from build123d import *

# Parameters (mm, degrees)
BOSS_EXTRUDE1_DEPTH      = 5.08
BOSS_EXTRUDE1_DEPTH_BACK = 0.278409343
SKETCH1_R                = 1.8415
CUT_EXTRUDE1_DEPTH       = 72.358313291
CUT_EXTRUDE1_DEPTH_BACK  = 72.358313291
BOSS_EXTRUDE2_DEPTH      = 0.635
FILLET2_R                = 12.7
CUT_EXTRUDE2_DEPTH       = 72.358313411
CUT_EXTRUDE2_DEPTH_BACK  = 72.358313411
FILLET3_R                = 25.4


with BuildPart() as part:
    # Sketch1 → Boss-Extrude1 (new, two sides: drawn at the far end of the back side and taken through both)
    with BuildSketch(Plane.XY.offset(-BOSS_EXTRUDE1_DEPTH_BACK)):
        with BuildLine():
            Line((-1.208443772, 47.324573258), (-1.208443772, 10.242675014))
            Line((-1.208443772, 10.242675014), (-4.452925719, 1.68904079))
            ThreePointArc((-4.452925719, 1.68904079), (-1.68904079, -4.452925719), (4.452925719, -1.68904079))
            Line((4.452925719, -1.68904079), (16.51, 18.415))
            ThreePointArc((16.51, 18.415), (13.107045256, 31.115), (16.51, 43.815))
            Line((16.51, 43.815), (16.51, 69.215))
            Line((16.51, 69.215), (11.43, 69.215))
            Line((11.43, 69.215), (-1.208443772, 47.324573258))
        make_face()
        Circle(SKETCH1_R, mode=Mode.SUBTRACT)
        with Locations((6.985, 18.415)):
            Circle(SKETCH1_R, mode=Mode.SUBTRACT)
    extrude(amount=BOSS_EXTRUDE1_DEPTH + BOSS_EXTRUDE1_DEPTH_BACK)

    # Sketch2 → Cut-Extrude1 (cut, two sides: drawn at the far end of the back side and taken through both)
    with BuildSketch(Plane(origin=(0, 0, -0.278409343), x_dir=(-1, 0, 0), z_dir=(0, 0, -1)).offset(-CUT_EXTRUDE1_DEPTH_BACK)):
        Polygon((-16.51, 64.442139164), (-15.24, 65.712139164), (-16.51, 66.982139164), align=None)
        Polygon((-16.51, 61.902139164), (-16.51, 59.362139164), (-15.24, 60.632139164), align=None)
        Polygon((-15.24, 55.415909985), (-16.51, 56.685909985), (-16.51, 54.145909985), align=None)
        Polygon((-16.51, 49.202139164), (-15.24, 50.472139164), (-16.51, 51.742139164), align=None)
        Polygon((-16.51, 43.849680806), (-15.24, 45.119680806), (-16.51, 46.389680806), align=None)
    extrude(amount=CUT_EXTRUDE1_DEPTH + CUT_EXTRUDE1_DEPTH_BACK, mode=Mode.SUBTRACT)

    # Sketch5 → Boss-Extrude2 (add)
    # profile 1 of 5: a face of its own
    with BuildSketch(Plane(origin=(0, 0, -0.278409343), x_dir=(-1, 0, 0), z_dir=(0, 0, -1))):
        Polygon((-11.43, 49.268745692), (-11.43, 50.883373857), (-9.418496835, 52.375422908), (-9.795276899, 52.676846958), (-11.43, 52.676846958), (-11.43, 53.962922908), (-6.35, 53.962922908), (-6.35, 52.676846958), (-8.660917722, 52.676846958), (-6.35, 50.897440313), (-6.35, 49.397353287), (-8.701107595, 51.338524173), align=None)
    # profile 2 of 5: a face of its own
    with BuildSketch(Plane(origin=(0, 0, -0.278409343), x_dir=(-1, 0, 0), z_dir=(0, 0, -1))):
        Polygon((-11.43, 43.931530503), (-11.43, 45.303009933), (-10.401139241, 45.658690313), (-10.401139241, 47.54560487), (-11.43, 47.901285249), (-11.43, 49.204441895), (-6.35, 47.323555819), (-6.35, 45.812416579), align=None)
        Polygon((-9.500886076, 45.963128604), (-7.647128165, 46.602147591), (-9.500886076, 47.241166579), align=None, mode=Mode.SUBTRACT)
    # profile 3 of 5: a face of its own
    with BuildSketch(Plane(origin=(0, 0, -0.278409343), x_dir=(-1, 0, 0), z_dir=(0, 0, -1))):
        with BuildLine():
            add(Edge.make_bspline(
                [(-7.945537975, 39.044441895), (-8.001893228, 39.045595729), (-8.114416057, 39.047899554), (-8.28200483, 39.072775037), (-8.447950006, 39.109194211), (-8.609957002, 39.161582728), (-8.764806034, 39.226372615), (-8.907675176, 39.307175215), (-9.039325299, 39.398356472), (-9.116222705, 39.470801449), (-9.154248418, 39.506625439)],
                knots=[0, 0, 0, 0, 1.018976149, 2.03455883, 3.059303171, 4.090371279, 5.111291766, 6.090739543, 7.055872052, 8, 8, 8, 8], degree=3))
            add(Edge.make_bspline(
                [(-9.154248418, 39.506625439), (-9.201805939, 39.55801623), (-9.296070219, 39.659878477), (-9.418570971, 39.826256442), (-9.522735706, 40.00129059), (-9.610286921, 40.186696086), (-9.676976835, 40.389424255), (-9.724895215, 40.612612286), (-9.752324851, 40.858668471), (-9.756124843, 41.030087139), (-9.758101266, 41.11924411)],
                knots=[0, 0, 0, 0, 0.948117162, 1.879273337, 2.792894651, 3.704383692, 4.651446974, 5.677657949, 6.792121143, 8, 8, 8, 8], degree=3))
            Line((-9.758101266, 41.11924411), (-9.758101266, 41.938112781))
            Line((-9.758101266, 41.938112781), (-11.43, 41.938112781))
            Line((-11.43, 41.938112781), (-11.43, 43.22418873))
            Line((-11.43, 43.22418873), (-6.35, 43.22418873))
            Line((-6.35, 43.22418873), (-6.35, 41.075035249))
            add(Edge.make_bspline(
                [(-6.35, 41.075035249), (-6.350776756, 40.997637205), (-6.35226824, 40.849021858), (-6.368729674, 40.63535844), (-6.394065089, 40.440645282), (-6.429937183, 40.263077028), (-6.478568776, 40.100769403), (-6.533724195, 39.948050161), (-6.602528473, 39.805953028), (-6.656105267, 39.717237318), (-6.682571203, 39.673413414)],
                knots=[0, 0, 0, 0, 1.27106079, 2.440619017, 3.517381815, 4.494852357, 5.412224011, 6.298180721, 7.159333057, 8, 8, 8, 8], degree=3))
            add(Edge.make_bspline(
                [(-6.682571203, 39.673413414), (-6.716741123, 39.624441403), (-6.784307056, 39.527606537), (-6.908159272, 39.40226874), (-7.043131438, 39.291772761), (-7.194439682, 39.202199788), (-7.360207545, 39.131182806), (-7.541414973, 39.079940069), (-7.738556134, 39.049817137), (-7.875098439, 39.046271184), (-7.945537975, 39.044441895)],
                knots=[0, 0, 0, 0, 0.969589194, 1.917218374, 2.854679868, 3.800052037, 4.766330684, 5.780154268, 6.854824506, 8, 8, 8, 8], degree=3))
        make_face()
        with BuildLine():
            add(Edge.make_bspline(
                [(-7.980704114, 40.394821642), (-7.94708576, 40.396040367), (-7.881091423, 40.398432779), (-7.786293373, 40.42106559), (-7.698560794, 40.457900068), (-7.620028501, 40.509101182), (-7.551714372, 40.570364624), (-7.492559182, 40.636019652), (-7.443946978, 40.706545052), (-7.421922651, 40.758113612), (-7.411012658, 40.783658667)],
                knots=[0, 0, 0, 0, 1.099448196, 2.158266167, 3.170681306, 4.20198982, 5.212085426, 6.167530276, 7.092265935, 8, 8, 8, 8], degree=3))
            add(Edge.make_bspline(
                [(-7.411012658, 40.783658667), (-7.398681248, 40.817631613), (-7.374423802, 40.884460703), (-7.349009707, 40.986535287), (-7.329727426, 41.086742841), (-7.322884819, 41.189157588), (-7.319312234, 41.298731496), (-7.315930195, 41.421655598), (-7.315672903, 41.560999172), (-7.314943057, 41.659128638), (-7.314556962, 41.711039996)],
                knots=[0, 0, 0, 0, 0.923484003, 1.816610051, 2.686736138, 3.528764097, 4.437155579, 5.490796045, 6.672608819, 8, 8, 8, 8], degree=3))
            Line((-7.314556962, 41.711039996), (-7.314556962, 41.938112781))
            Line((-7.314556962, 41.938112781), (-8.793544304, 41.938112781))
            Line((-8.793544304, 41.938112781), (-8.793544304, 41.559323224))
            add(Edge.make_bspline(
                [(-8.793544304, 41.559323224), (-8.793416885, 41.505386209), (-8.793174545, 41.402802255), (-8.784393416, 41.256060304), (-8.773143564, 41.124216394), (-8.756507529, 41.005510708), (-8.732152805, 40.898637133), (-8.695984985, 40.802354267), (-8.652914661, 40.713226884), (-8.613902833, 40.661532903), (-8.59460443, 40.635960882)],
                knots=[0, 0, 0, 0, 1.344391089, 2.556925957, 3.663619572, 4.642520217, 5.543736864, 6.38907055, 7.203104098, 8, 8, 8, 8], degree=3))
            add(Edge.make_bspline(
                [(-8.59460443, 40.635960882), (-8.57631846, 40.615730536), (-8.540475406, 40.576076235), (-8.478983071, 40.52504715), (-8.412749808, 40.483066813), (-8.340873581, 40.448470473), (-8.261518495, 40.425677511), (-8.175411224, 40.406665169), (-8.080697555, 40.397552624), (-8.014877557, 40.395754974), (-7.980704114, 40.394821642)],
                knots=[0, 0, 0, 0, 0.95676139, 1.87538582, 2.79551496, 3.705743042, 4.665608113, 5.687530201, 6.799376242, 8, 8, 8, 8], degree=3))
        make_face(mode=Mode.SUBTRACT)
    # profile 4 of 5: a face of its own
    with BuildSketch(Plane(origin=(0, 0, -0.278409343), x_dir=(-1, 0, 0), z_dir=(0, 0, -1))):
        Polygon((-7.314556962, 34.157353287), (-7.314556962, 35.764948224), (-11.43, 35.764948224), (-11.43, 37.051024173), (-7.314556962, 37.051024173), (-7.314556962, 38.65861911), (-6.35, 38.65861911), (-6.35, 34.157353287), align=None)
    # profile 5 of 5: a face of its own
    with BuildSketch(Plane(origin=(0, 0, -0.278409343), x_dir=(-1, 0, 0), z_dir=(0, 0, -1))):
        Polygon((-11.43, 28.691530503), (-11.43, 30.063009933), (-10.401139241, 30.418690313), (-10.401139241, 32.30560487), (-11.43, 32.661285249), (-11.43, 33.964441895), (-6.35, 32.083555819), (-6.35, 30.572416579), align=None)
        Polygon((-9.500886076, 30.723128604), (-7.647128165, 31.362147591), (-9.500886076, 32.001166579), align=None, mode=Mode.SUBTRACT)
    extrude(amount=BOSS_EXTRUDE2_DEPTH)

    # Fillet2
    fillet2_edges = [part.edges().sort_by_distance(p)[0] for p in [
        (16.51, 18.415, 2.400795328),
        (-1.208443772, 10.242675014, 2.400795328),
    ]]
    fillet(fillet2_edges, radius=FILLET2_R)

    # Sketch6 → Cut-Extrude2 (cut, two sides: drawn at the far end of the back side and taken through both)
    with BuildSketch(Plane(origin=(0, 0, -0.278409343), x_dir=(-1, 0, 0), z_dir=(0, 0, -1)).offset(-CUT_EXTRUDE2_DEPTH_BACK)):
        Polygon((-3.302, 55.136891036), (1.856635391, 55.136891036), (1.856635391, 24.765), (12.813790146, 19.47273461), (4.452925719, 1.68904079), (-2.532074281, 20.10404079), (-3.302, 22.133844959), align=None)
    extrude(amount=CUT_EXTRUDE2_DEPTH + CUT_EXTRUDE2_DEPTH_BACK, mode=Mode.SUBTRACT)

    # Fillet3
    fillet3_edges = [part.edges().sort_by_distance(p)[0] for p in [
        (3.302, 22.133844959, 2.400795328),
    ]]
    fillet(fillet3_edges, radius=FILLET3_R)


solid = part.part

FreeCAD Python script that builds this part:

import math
import FreeCAD as App
import Part
import Sketcher

V = App.Vector
Q = App.Units.Quantity


def edges_at(feature, points):
    """Names of the edges that pass closest to the given points."""
    edges = feature.Shape.Edges
    near = lambda p: min(range(len(edges)), key=lambda i: edges[i].distToShape(Part.Vertex(*p))[0])
    return sorted({f"Edge{near(p) + 1}" for p in points})


def add_polygon(sketch, points):
    """Adds a closed chain of lines whose ends are joined by coincident constraints."""
    first, n = sketch.GeometryCount, len(points)
    for a, b in zip(points, points[1:] + points[:1]):
        sketch.addGeometry(Part.LineSegment(App.Vector(*a, 0), App.Vector(*b, 0)), False)
    for i in range(n):
        sketch.addConstraint(Sketcher.Constraint("Coincident", first + i, 2, first + (i + 1) % n, 1))

doc = App.newDocument("Part")
body = doc.addObject("PartDesign::Body", "Body")

sketch1 = body.newObject("Sketcher::SketchObject", "Sketch")
sketch1.AttachmentSupport = (doc.getObject("XY_Plane"), [""])
sketch1.MapMode = "FlatFace"
sketch1.addGeometry([
    Part.LineSegment(V(-1.2, 47.3, 0), V(-1.2, 10.2, 0)),
    Part.LineSegment(V(-1.2, 10.2, 0), V(-4.5, 1.7, 0)),
    Part.ArcOfCircle(Part.Circle(V(0, 0, 0), V(0, 0, 1), 4.8), math.radians(159), math.radians(339)),
    Part.LineSegment(V(4.5, -1.7, 0), V(16.5, 18.4, 0)),
    Part.ArcOfCircle(Part.Circle(V(38.5, 31.1, 0), V(0, 0, 1), 25.4), math.radians(150), math.radians(210)),
    Part.LineSegment(V(16.5, 43.8, 0), V(16.5, 69.2, 0)),
    Part.LineSegment(V(16.5, 69.2, 0), V(11.4, 69.2, 0)),
    Part.LineSegment(V(11.4, 69.2, 0), V(-1.2, 47.3, 0)),
    Part.Circle(V(0, 0, 0), V(0, 0, 1), 1.8),
    Part.Circle(V(7, 18.4, 0), V(0, 0, 1), 1.8),
], False)
sketch1.addConstraint([
    Sketcher.Constraint("Coincident", 0, 2, 1, 1),
    Sketcher.Constraint("Tangent", 1, 2, 2, 1),
    Sketcher.Constraint("Coincident", 2, 2, 3, 1),
    Sketcher.Constraint("Coincident", 3, 2, 4, 2),
    Sketcher.Constraint("Coincident", 4, 1, 5, 1),
    Sketcher.Constraint("Coincident", 5, 2, 6, 1),
    Sketcher.Constraint("Coincident", 6, 2, 7, 1),
    Sketcher.Constraint("Coincident", 7, 2, 0, 1),
    Sketcher.Constraint("Vertical", 0),
    Sketcher.Constraint("Vertical", 5),
    Sketcher.Constraint("Horizontal", 6),
    Sketcher.Constraint("Coincident", 2, 3, -1, 1),
    Sketcher.Constraint("Coincident", 8, 3, -1, 1),
    Sketcher.Constraint("Equal", 8, 9),
    Sketcher.Constraint("Horizontal", 9, 3, 3, 2),
    Sketcher.Constraint("Vertical", 3, 2, 4, 1),
    Sketcher.Constraint("Radius", 4, Q("1 in")),
    Sketcher.Constraint("DistanceY", 5, 1, 5, 2, Q("1 in")),
    Sketcher.Constraint("Diameter", 8, Q("0.145 in")),
    Sketcher.Constraint("DistanceX", 6, 2, 6, 1, Q("0.2 in")),
    Sketcher.Constraint("Angle", 7, Q("-120 deg")),
    Sketcher.Constraint("Radius", 2, Q("0.1875 in")),
    Sketcher.Constraint("DistanceY", 3, 2, 4, 1, Q("1 in")),
    Sketcher.Constraint("DistanceX", -1, 1, 3, 2, Q("0.65 in")),
    Sketcher.Constraint("DistanceY", -1, 1, 4, 3, Q("1.225 in")),
    Sketcher.Constraint("DistanceX", -1, 1, 9, 3, Q("0.275 in")),
    Sketcher.Constraint("DistanceY", 0, 2, 0, 1, 37.081898),
    Sketcher.Constraint("DistanceY", -1, 1, 1, 2, 1.689041),
    Sketcher.Constraint("DistanceY", 2, 2, -1, 1, 1.689041),
])
pad1 = body.newObject("PartDesign::Pad", "Pad")
pad1.Profile = sketch1
pad1.Type = "TwoLengths"
pad1.Length = Q("0.2 in")
pad1.Length2 = 0.278409

sketch2 = body.newObject("Sketcher::SketchObject", "Sketch001")
sketch2.AttachmentSupport = (doc.getObject("XY_Plane"), [""])
sketch2.MapMode = "FlatFace"
sketch2.AttachmentOffset = App.Placement(V(0, 0, -0.278409), App.Rotation())
add_polygon(sketch2, [(16.5, 64.4), (15.2, 65.7), (16.5, 67)])
add_polygon(sketch2, [(16.5, 61.9), (16.5, 59.4), (15.2, 60.6)])
add_polygon(sketch2, [(15.2, 55.4), (16.5, 56.7), (16.5, 54.1)])
add_polygon(sketch2, [(16.5, 49.2), (15.2, 50.5), (16.5, 51.7)])
add_polygon(sketch2, [(16.5, 43.8), (15.2, 45.1), (16.5, 46.4)])
sketch2.addConstraint([
    Sketcher.Constraint("Vertical", 2),
    Sketcher.Constraint("Vertical", 3),
    Sketcher.Constraint("Vertical", 7),
    Sketcher.Constraint("Vertical", 11),
    Sketcher.Constraint("Vertical", 14),
    Sketcher.Constraint("Perpendicular", 0, 1),
    Sketcher.Constraint("Perpendicular", 1, 4),
    Sketcher.Constraint("Perpendicular", 4, 5),
    Sketcher.Constraint("Parallel", 5, 6),
    Sketcher.Constraint("Perpendicular", 6, 8),
    Sketcher.Constraint("Parallel", 8, 9),
    Sketcher.Constraint("Perpendicular", 9, 10),
    Sketcher.Constraint("Perpendicular", 10, 12),
    Sketcher.Constraint("Perpendicular", 12, 13),
    Sketcher.Constraint("Vertical", 2, 2, 3, 2),
    Sketcher.Constraint("Vertical", 0, 2, 4, 2),
    Sketcher.Constraint("Vertical", 5, 2, 6, 2),
    Sketcher.Constraint("Vertical", 4, 2, 8, 2),
    Sketcher.Constraint("Vertical", 8, 2, 9, 2),
    Sketcher.Constraint("Vertical", 7, 2, 10, 2),
    Sketcher.Constraint("Vertical", 9, 2, 12, 2),
    Sketcher.Constraint("Vertical", 11, 2, 13, 2),
    Sketcher.Constraint("Equal", 0, 1),
    Sketcher.Constraint("DistanceY", 2, 2, 2, 1, Q("0.1 in")),
    Sketcher.Constraint("DistanceX", -1, 1, 0, 2, Q("0.6 in")),
    Sketcher.Constraint("DistanceY", 3, 2, 2, 2, Q("0.2 in")),
    Sketcher.Constraint("DistanceY", 9, 2, 4, 2, Q("0.4 in")),
    Sketcher.Constraint("DistanceY", -1, 1, 0, 2, 65.712139),
    Sketcher.Constraint("DistanceY", -1, 1, 6, 2, 56.68591),
    Sketcher.Constraint("DistanceY", -1, 1, 12, 2, 45.119681),
])
pocket1 = body.newObject("PartDesign::Pocket", "Pocket")
pocket1.Profile = sketch2
pocket1.Type = "ThroughAll"
pocket1.Midplane = True

sketch3 = body.newObject("Sketcher::SketchObject", "Sketch002")
sketch3.AttachmentSupport = (doc.getObject("XY_Plane"), [""])
sketch3.MapMode = "FlatFace"
sketch3.AttachmentOffset = App.Placement(V(0, 0, -0.278409), App.Rotation())
add_polygon(sketch3, [(11.43, 50.883374), (11.43, 49.268746), (8.701108, 51.338524), (6.35, 49.397353), (6.35, 50.89744), (8.660918, 52.676847), (6.35, 52.676847), (6.35, 53.962923), (11.43, 53.962923), (11.43, 52.676847), (9.795277, 52.676847), (9.418497, 52.375423)])
add_polygon(sketch3, [(11.43, 45.30301), (11.43, 43.931531), (6.35, 45.812417), (6.35, 47.323556), (11.43, 49.204442), (11.43, 47.901285), (10.401139, 47.545605), (10.401139, 45.65869)])
add_polygon(sketch3, [(9.500886, 45.963129), (9.500886, 47.241167), (7.647128, 46.602148)])
sketch3.addGeometry(Part.BSplineCurve([V(7.945538, 39.044442, 0), V(8.001893, 39.045596, 0), V(8.114416, 39.0479, 0), V(8.282005, 39.072775, 0), V(8.44795, 39.109194, 0), V(8.609957, 39.161583, 0), V(8.764806, 39.226373, 0), V(8.907675, 39.307175, 0), V(9.039325, 39.398356, 0), V(9.116223, 39.470801, 0), V(9.154248, 39.506625, 0)], [4, 1, 1, 1, 1, 1, 1, 1, 4], [0, 1.018976149, 2.03455883, 3.059303171, 4.090371279, 5.111291766, 6.090739543, 7.055872052, 8], False, 3, [1, 1, 1, 1, 1, 1, 1, 1, 1, 1, 1], False), False)
sketch3.addGeometry(Part.BSplineCurve([V(6.682571, 39.673413, 0), V(6.716741, 39.624441, 0), V(6.784307, 39.527607, 0), V(6.908159, 39.402269, 0), V(7.043131, 39.291773, 0), V(7.19444, 39.2022, 0), V(7.360208, 39.131183, 0), V(7.541415, 39.07994, 0), V(7.738556, 39.049817, 0), V(7.875098, 39.046271, 0), V(7.945538, 39.044442, 0)], [4, 1, 1, 1, 1, 1, 1, 1, 4], [0, 0.969589194, 1.917218374, 2.854679868, 3.800052037, 4.766330684, 5.780154268, 6.854824506, 8], False, 3, [1, 1, 1, 1, 1, 1, 1, 1, 1, 1, 1], False), False)
sketch3.addGeometry(Part.BSplineCurve([V(6.35, 41.075035, 0), V(6.350777, 40.997637, 0), V(6.352268, 40.849022, 0), V(6.36873, 40.635358, 0), V(6.394065, 40.440645, 0), V(6.429937, 40.263077, 0), V(6.478569, 40.100769, 0), V(6.533724, 39.94805, 0), V(6.602528, 39.805953, 0), V(6.656105, 39.717237, 0), V(6.682571, 39.673413, 0)], [4, 1, 1, 1, 1, 1, 1, 1, 4], [0, 1.27106079, 2.440619017, 3.517381815, 4.494852357, 5.412224011, 6.298180721, 7.159333057, 8], False, 3, [1, 1, 1, 1, 1, 1, 1, 1, 1, 1, 1], False), False)
sketch3.addGeometry(Part.LineSegment(V(6.35, 41.075035, 0), V(6.35, 43.224189, 0)), False)
sketch3.addGeometry(Part.LineSegment(V(6.35, 43.224189, 0), V(11.43, 43.224189, 0)), False)
sketch3.addGeometry(Part.LineSegment(V(11.43, 43.224189, 0), V(11.43, 41.938113, 0)), False)
sketch3.addGeometry(Part.LineSegment(V(11.43, 41.938113, 0), V(9.758101, 41.938113, 0)), False)
sketch3.addGeometry(Part.LineSegment(V(9.758101, 41.938113, 0), V(9.758101, 41.119244, 0)), False)
sketch3.addGeometry(Part.BSplineCurve([V(9.154248, 39.506625, 0), V(9.201806, 39.558016, 0), V(9.29607, 39.659878, 0), V(9.418571, 39.826256, 0), V(9.522736, 40.001291, 0), V(9.610287, 40.186696, 0), V(9.676977, 40.389424, 0), V(9.724895, 40.612612, 0), V(9.752325, 40.858668, 0), V(9.756125, 41.030087, 0), V(9.758101, 41.119244, 0)], [4, 1, 1, 1, 1, 1, 1, 1, 4], [0, 0.948117162, 1.879273337, 2.792894651, 3.704383692, 4.651446974, 5.677657949, 6.792121143, 8], False, 3, [1, 1, 1, 1, 1, 1, 1, 1, 1, 1, 1], False), False)
sketch3.addGeometry(Part.BSplineCurve([V(8.594604, 40.635961, 0), V(8.576318, 40.615731, 0), V(8.540475, 40.576076, 0), V(8.478983, 40.525047, 0), V(8.41275, 40.483067, 0), V(8.340874, 40.44847, 0), V(8.261518, 40.425678, 0), V(8.175411, 40.406665, 0), V(8.080698, 40.397553, 0), V(8.014878, 40.395755, 0), V(7.980704, 40.394822, 0)], [4, 1, 1, 1, 1, 1, 1, 1, 4], [0, 0.95676139, 1.87538582, 2.79551496, 3.705743042, 4.665608113, 5.687530201, 6.799376242, 8], False, 3, [1, 1, 1, 1, 1, 1, 1, 1, 1, 1, 1], False), False)
sketch3.addGeometry(Part.BSplineCurve([V(8.793544, 41.559323, 0), V(8.793417, 41.505386, 0), V(8.793175, 41.402802, 0), V(8.784393, 41.25606, 0), V(8.773144, 41.124216, 0), V(8.756508, 41.005511, 0), V(8.732153, 40.898637, 0), V(8.695985, 40.802354, 0), V(8.652915, 40.713227, 0), V(8.613903, 40.661533, 0), V(8.594604, 40.635961, 0)], [4, 1, 1, 1, 1, 1, 1, 1, 4], [0, 1.344391089, 2.556925957, 3.663619572, 4.642520217, 5.543736864, 6.38907055, 7.203104098, 8], False, 3, [1, 1, 1, 1, 1, 1, 1, 1, 1, 1, 1], False), False)
sketch3.addGeometry(Part.LineSegment(V(8.793544, 41.559323, 0), V(8.793544, 41.938113, 0)), False)
sketch3.addGeometry(Part.LineSegment(V(8.793544, 41.938113, 0), V(7.314557, 41.938113, 0)), False)
sketch3.addGeometry(Part.LineSegment(V(7.314557, 41.938113, 0), V(7.314557, 41.71104, 0)), False)
sketch3.addGeometry(Part.BSplineCurve([V(7.411013, 40.783659, 0), V(7.398681, 40.817632, 0), V(7.374424, 40.884461, 0), V(7.34901, 40.986535, 0), V(7.329727, 41.086743, 0), V(7.322885, 41.189158, 0), V(7.319312, 41.298731, 0), V(7.31593, 41.421656, 0), V(7.315673, 41.560999, 0), V(7.314943, 41.659129, 0), V(7.314557, 41.71104, 0)], [4, 1, 1, 1, 1, 1, 1, 1, 4], [0, 0.923484003, 1.816610051, 2.686736138, 3.528764097, 4.437155579, 5.490796045, 6.672608819, 8], False, 3, [1, 1, 1, 1, 1, 1, 1, 1, 1, 1, 1], False), False)
sketch3.addGeometry(Part.BSplineCurve([V(7.980704, 40.394822, 0), V(7.947086, 40.39604, 0), V(7.881091, 40.398433, 0), V(7.786293, 40.421066, 0), V(7.698561, 40.4579, 0), V(7.620029, 40.509101, 0), V(7.551714, 40.570365, 0), V(7.492559, 40.63602, 0), V(7.443947, 40.706545, 0), V(7.421923, 40.758114, 0), V(7.411013, 40.783659, 0)], [4, 1, 1, 1, 1, 1, 1, 1, 4], [0, 1.099448196, 2.158266167, 3.170681306, 4.20198982, 5.212085426, 6.167530276, 7.092265935, 8], False, 3, [1, 1, 1, 1, 1, 1, 1, 1, 1, 1, 1], False), False)
add_polygon(sketch3, [(7.314557, 35.764948), (7.314557, 34.157353), (6.35, 34.157353), (6.35, 38.658619), (7.314557, 38.658619), (7.314557, 37.051024), (11.43, 37.051024), (11.43, 35.764948)])
add_polygon(sketch3, [(11.43, 30.06301), (11.43, 28.691531), (6.35, 30.572417), (6.35, 32.083556), (11.43, 33.964442), (11.43, 32.661285), (10.401139, 32.305605), (10.401139, 30.41869)])
add_polygon(sketch3, [(9.500886, 30.723129), (9.500886, 32.001167), (7.647128, 31.362148)])
sketch3.addConstraint([
    Sketcher.Constraint("Block", 23),
    Sketcher.Constraint("Block", 24),
    Sketcher.Constraint("Block", 25),
    Sketcher.Constraint("Block", 31),
    Sketcher.Constraint("Block", 32),
    Sketcher.Constraint("Block", 33),
    Sketcher.Constraint("Block", 37),
    Sketcher.Constraint("Block", 38),
    Sketcher.Constraint("Coincident", 25, 1, 26, 1),
    Sketcher.Constraint("Coincident", 26, 2, 27, 1),
    Sketcher.Constraint("Coincident", 27, 2, 28, 1),
    Sketcher.Constraint("Coincident", 28, 2, 29, 1),
    Sketcher.Constraint("Coincident", 29, 2, 30, 1),
    Sketcher.Constraint("Coincident", 30, 2, 31, 2),
    Sketcher.Constraint("Coincident", 33, 1, 34, 1),
    Sketcher.Constraint("Coincident", 34, 2, 35, 1),
    Sketcher.Constraint("Coincident", 35, 2, 36, 1),
    Sketcher.Constraint("Coincident", 36, 2, 37, 2),
    Sketcher.Constraint("Vertical", 0),
    Sketcher.Constraint("Vertical", 3),
    Sketcher.Constraint("Horizontal", 5),
    Sketcher.Constraint("Vertical", 6),
    Sketcher.Constraint("Horizontal", 7),
    Sketcher.Constraint("Vertical", 8),
    Sketcher.Constraint("Horizontal", 9),
    Sketcher.Constraint("Vertical", 12),
    Sketcher.Constraint("Vertical", 14),
    Sketcher.Constraint("Vertical", 16),
    Sketcher.Constraint("Vertical", 18),
    Sketcher.Constraint("Vertical", 20),
    Sketcher.Constraint("Vertical", 26),
    Sketcher.Constraint("Horizontal", 27),
    Sketcher.Constraint("Vertical", 28),
    Sketcher.Constraint("Horizontal", 29),
    Sketcher.Constraint("Vertical", 30),
    Sketcher.Constraint("Vertical", 34),
    Sketcher.Constraint("Horizontal", 35),
    Sketcher.Constraint("Vertical", 36),
    Sketcher.Constraint("Vertical", 39),
    Sketcher.Constraint("Horizontal", 40),
    Sketcher.Constraint("Vertical", 41),
    Sketcher.Constraint("Horizontal", 42),
    Sketcher.Constraint("Vertical", 43),
    Sketcher.Constraint("Horizontal", 44),
    Sketcher.Constraint("Vertical", 45),
    Sketcher.Constraint("Horizontal", 46),
    Sketcher.Constraint("Vertical", 47),
    Sketcher.Constraint("Vertical", 49),
    Sketcher.Constraint("Vertical", 51),
    Sketcher.Constraint("Vertical", 53),
    Sketcher.Constraint("Vertical", 55),
    Sketcher.Constraint("Parallel", 13, 48),
    Sketcher.Constraint("Parallel", 15, 50),
    Sketcher.Constraint("Parallel", 17, 52),
    Sketcher.Constraint("Parallel", 19, 54),
    Sketcher.Constraint("Parallel", 21, 56),
    Sketcher.Constraint("Parallel", 22, 57),
    Sketcher.Constraint("Horizontal", 5, 2, 8, 2),
    Sketcher.Constraint("Horizontal", 29, 2, 34, 2),
    Sketcher.Constraint("Vertical", 3, 2, 5, 2),
    Sketcher.Constraint("Vertical", 0, 2, 7, 2),
    Sketcher.Constraint("Vertical", 11, 2, 12, 2),
    Sketcher.Constraint("Vertical", 6, 2, 13, 2),
    Sketcher.Constraint("Vertical", 12, 2, 15, 2),
    Sketcher.Constraint("Vertical", 14, 2, 26, 2),
    Sketcher.Constraint("Vertical", 19, 2, 27, 2),
    Sketcher.Constraint("Vertical", 36, 2, 39, 2),
    Sketcher.Constraint("Vertical", 26, 2, 40, 2),
    Sketcher.Constraint("Vertical", 39, 2, 42, 2),
    Sketcher.Constraint("Vertical", 28, 2, 44, 2),
    Sketcher.Constraint("Vertical", 45, 2, 47, 2),
    Sketcher.Constraint("Vertical", 41, 2, 48, 2),
    Sketcher.Constraint("Vertical", 47, 2, 50, 2),
    Sketcher.Constraint("Vertical", 18, 2, 52, 2),
    Sketcher.Constraint("Vertical", 22, 2, 55, 2),
    Sketcher.Constraint("Vertical", 21, 2, 56, 2),
    Sketcher.Constraint("Equal", 8, 28),
    Sketcher.Constraint("Equal", 39, 43),
    Sketcher.Constraint("Equal", 28, 45),
    Sketcher.Constraint("Equal", 12, 47),
    Sketcher.Constraint("Equal", 14, 49),
    Sketcher.Constraint("Equal", 16, 51),
    Sketcher.Constraint("Equal", 13, 15),
    Sketcher.Constraint("Equal", 17, 19),
    Sketcher.Constraint("Equal", 21, 22),
    Sketcher.Constraint("DistanceX", 7, 1, 7, 2, Q("0.2 in")),
    Sketcher.Constraint("DistanceY", 10, 2, 7, 2, Q("0.0625 in")),
    Sketcher.Constraint("DistanceY", 0, 2, 0, 1, 1.614628),
    Sketcher.Constraint("DistanceY", 12, 2, 12, 1, 1.371479),
    Sketcher.Constraint("DistanceY", 14, 1, 14, 2, 1.511139),
    Sketcher.Constraint("DistanceY", 30, 2, 30, 1, 0.818869),
    Sketcher.Constraint("DistanceY", 0, 2, 4, 2, 3.408101),
    Sketcher.Constraint("DistanceY", 1, 2, 6, 2, 2.624399),
    Sketcher.Constraint("DistanceY", 26, 2, 18, 2, 2.434502),
    Sketcher.Constraint("Distance", 1, 3.425031),
    Sketcher.Constraint("Distance", 2, 3.04891),
    Sketcher.Constraint("DistanceX", 5, 2, 5, 1, 2.310918),
    Sketcher.Constraint("DistanceX", 9, 2, 9, 1, 1.634723),
    Sketcher.Constraint("DistanceY", 3, 1, 3, 2, 1.500087),
    Sketcher.Constraint("DistanceY", 6, 1, 6, 2, 1.286076),
    Sketcher.Constraint("DistanceY", 16, 2, 16, 1, 1.303157),
    Sketcher.Constraint("DistanceY", 18, 2, 18, 1, 1.886915),
    Sketcher.Constraint("DistanceY", 20, 1, 20, 2, 1.278038),
    Sketcher.Constraint("DistanceY", 39, 2, 39, 1, 1.607595),
    Sketcher.Constraint("DistanceY", -1, 1, 3, 2, 50.89744),
    Sketcher.Constraint("DistanceY", -1, 1, 12, 2, 43.931531),
    Sketcher.Constraint("DistanceX", -1, 1, 17, 2, 10.401139),
    Sketcher.Constraint("DistanceX", -1, 1, 21, 2, 7.647128),
    Sketcher.Constraint("DistanceY", -1, 1, 22, 2, 45.963129),
    Sketcher.Constraint("DistanceY", -1, 1, 41, 2, 38.658619),
    Sketcher.Constraint("DistanceY", -1, 1, 47, 2, 28.691531),
    Sketcher.Constraint("DistanceY", -1, 1, 57, 2, 30.723129),
    Sketcher.Constraint("DistanceX", 10, 2, 9, 2, 0.37678),
    Sketcher.Constraint("Distance", 21, 1.960807),
])
pad2 = body.newObject("PartDesign::Pad", "Pad001")
pad2.Profile = sketch3
pad2.Length = Q("0.025 in")
pad2.Reversed = True
doc.recompute()

fillet = body.newObject("PartDesign::Fillet", "Fillet")
fillet.Base = (pad2, edges_at(pad2, [(16.51, 18.415, 2.401), (-1.208, 10.243, 2.401)]))
fillet.Radius = Q("0.5 in")

sketch4 = body.newObject("Sketcher::SketchObject", "Sketch003")
sketch4.AttachmentSupport = (doc.getObject("XY_Plane"), [""])
sketch4.MapMode = "FlatFace"
sketch4.AttachmentOffset = App.Placement(V(0, 0, -0.278409), App.Rotation())
add_polygon(sketch4, [(-1.9, 55.1), (3.3, 55.1), (3.3, 22.1), (2.5, 20.1), (-4.5, 1.7), (-12.8, 19.5), (-1.9, 24.8)])
sketch4.addConstraint([
    Sketcher.Constraint("Horizontal", 0),
    Sketcher.Constraint("Vertical", 1),
    Sketcher.Constraint("Vertical", 6),
    Sketcher.Constraint("Parallel", 2, 3),
    Sketcher.Constraint("DistanceX", -1, 1, 0, 2, Q("0.13 in")),
    Sketcher.Constraint("DistanceY", -1, 1, 5, 2, Q("0.975 in")),
    Sketcher.Constraint("DistanceX", 3, 2, 2, 2, Q("0.275 in")),
    Sketcher.Constraint("DistanceY", 3, 2, 2, 2, Q("0.725 in")),
    Sketcher.Constraint("DistanceY", 6, 1, 6, 2, 30.371891),
    Sketcher.Constraint("Distance", 2, 2.170919),
    Sketcher.Constraint("Distance", 4, 19.651051),
    Sketcher.Constraint("Distance", 5, 12.168291),
    Sketcher.Constraint("DistanceX", 0, 1, 0, 2, 5.158635),
    Sketcher.Constraint("DistanceY", 1, 2, 1, 1, 33.003046),
])
pocket2 = body.newObject("PartDesign::Pocket", "Pocket001")
pocket2.Profile = sketch4
pocket2.Type = "ThroughAll"
pocket2.Midplane = True
doc.recompute()

fillet2 = body.newObject("PartDesign::Fillet", "Fillet001")
fillet2.Base = (pocket2, edges_at(pocket2, [(3.302, 22.134, 2.401)]))
fillet2.Radius = Q("1 in")

doc.recompute()
